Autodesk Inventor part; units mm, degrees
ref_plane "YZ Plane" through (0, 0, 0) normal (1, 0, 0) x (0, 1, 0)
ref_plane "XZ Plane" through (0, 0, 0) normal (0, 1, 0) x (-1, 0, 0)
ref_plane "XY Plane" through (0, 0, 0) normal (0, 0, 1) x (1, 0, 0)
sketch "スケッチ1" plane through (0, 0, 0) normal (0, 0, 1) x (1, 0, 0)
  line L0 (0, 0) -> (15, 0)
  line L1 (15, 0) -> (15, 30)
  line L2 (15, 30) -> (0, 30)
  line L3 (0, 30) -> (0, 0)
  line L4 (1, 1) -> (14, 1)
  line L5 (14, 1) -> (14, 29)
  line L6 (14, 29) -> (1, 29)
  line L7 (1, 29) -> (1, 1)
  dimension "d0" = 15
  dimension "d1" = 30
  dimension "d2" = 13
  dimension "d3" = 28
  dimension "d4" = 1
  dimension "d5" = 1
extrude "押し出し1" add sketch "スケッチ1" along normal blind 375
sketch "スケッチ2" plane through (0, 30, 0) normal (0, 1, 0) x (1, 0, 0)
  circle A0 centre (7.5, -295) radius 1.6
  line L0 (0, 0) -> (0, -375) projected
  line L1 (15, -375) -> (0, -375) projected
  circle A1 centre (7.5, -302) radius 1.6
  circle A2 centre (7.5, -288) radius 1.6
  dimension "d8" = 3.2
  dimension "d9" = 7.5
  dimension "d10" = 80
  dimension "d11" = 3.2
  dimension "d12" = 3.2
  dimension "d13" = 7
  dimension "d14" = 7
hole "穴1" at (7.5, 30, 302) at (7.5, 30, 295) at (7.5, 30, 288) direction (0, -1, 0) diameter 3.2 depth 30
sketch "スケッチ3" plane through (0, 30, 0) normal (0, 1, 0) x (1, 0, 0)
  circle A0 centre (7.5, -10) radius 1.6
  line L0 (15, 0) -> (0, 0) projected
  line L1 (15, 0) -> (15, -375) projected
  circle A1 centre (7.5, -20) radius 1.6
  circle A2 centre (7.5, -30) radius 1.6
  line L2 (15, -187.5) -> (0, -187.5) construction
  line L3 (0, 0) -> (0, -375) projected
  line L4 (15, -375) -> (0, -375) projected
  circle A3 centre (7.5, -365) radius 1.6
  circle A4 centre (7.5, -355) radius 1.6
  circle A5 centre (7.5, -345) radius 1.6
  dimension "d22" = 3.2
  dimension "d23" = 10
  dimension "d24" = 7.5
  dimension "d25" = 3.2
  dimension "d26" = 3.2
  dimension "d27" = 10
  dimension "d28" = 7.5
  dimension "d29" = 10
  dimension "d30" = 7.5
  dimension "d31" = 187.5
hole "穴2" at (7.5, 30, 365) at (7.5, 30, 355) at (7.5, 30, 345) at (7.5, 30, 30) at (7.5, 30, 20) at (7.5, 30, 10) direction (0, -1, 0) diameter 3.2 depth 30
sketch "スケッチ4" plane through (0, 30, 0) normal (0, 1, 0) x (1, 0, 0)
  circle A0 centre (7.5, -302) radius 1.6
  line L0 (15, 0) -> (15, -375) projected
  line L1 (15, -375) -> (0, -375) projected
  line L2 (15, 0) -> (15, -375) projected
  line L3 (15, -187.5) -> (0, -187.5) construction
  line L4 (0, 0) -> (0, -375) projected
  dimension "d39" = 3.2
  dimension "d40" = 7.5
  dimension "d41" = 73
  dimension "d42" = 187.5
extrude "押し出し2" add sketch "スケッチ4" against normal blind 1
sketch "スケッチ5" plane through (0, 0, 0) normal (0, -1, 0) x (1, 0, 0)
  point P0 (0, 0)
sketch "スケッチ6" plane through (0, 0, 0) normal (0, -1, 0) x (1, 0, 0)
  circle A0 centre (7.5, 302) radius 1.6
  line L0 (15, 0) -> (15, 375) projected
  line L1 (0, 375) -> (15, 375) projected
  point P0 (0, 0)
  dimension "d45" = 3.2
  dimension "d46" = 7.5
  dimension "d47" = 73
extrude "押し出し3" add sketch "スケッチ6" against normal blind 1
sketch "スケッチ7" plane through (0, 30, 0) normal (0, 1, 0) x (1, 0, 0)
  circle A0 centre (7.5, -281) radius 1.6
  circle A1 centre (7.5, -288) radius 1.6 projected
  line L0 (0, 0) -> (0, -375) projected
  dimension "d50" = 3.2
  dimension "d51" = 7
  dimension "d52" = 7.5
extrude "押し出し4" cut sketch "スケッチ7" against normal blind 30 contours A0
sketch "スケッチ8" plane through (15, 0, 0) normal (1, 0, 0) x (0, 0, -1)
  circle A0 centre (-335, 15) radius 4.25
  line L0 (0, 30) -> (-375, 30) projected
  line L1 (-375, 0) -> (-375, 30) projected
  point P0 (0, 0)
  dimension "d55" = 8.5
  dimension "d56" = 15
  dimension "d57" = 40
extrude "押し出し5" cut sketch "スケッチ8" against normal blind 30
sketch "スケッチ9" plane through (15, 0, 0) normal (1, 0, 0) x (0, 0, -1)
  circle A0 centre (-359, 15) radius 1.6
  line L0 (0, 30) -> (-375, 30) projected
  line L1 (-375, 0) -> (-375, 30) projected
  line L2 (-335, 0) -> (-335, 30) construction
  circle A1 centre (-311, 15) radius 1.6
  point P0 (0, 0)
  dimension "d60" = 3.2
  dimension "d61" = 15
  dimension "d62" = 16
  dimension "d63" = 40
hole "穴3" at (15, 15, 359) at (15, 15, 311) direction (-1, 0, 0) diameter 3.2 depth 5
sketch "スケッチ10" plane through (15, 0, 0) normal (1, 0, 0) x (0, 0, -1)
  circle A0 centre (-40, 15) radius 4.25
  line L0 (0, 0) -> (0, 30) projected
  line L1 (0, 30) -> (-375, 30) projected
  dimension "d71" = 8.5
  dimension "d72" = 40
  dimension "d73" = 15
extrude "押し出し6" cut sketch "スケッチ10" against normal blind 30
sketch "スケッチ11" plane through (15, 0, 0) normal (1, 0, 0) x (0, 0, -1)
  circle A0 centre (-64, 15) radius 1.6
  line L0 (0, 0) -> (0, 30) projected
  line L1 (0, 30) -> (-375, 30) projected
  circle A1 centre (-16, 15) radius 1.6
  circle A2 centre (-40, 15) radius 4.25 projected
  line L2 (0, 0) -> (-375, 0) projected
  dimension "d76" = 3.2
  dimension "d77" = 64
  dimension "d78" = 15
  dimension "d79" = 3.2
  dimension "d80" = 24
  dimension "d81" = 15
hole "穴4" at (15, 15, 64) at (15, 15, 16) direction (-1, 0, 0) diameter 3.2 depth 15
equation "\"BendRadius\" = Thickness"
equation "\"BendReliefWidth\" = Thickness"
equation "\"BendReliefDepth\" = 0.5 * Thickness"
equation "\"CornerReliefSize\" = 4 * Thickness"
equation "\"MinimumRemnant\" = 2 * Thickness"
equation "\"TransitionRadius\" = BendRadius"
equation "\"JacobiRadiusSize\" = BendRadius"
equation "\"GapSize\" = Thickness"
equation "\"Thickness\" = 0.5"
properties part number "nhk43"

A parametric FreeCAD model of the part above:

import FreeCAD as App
import Part
import Sketcher

V = App.Vector
Q = App.Units.Quantity


def add_polygon(sketch, points):
    """Adds a closed chain of lines whose ends are joined by coincident constraints."""
    first, n = sketch.GeometryCount, len(points)
    for a, b in zip(points, points[1:] + points[:1]):
        sketch.addGeometry(Part.LineSegment(App.Vector(*a, 0), App.Vector(*b, 0)), False)
    for i in range(n):
        sketch.addConstraint(Sketcher.Constraint("Coincident", first + i, 2, first + (i + 1) % n, 1))

doc = App.newDocument("Part")
body = doc.addObject("PartDesign::Body", "Body")

# Sketch on XY plane
sketch1 = doc.addObject("Sketcher::SketchObject", "Sketch")
body.addObject(sketch1)
sketch1.AttachmentSupport = (doc.XY_Plane, [""])
sketch1.MapMode = "FlatFace"
add_polygon(sketch1, [(0, 30), (0, 0), (15, 0), (15, 30)])  # lines 0-3
add_polygon(sketch1, [(14, 1), (1, 1), (1, 29), (14, 29)])  # lines 4-7
sketch1.addConstraint(Sketcher.Constraint("Vertical", 0))
sketch1.addConstraint(Sketcher.Constraint("Horizontal", 1))
sketch1.addConstraint(Sketcher.Constraint("Vertical", 2))
sketch1.addConstraint(Sketcher.Constraint("Horizontal", 3))
sketch1.addConstraint(Sketcher.Constraint("Horizontal", 4))
sketch1.addConstraint(Sketcher.Constraint("Vertical", 5))
sketch1.addConstraint(Sketcher.Constraint("Horizontal", 6))
sketch1.addConstraint(Sketcher.Constraint("Vertical", 7))
sketch1.addConstraint(Sketcher.Constraint("Coincident", 0, 2, -1, 1))
sketch1.addConstraint(Sketcher.Constraint("DistanceX", 1, 1, 1, 2, Q("15 mm")))
sketch1.addConstraint(Sketcher.Constraint("DistanceX", 4, 2, 4, 1, Q("13 mm")))
sketch1.addConstraint(Sketcher.Constraint("DistanceY", 0, 2, 0, 1, Q("30 mm")))
sketch1.addConstraint(Sketcher.Constraint("DistanceY", 5, 1, 5, 2, Q("28 mm")))
sketch1.addConstraint(Sketcher.Constraint("DistanceX", -1, 1, 4, 2, Q("1 mm")))
sketch1.addConstraint(Sketcher.Constraint("DistanceY", -1, 1, 4, 2, Q("1 mm")))
pad1 = doc.addObject("PartDesign::Pad", "Pad")
body.addObject(pad1)
pad1.Profile = sketch1
pad1.Length = 375

# Sketch on XZ plane
sketch2 = doc.addObject("Sketcher::SketchObject", "Sketch001")
body.addObject(sketch2)
sketch2.AttachmentSupport = (doc.XZ_Plane, [""])
sketch2.MapMode = "FlatFace"
sketch2.AttachmentOffset = App.Placement(V(0, 0, -30), App.Rotation())
sketch2.addGeometry(Part.Circle(V(7.5, 302, 0), V(0, 0, 1), 1.6), False)
sketch2.addGeometry(Part.Circle(V(7.5, 295, 0), V(0, 0, 1), 1.6), False)
sketch2.addGeometry(Part.Circle(V(7.5, 288, 0), V(0, 0, 1), 1.6), False)
sketch2.addConstraint(Sketcher.Constraint("Equal", 0, 1))
sketch2.addConstraint(Sketcher.Constraint("Equal", 1, 2))
sketch2.addConstraint(Sketcher.Constraint("Vertical", 0, 3, 1, 3))
sketch2.addConstraint(Sketcher.Constraint("Vertical", 1, 3, 2, 3))
sketch2.addConstraint(Sketcher.Constraint("Diameter", 0, Q("3.2 mm")))
sketch2.addConstraint(Sketcher.Constraint("DistanceY", -1, 1, 0, 3, Q("302 mm")))
sketch2.addConstraint(Sketcher.Constraint("DistanceY", -1, 1, 1, 3, Q("295 mm")))
sketch2.addConstraint(Sketcher.Constraint("DistanceY", -1, 1, 2, 3, Q("288 mm")))
sketch2.addConstraint(Sketcher.Constraint("DistanceX", -1, 1, 0, 3, Q("7.5 mm")))
doc.recompute()
hole = doc.addObject("PartDesign::Hole", "Hole")
body.addObject(hole)
hole.Profile = sketch2
hole.ThreadType = "None"
hole.Diameter = 3.2
hole.DepthType = "Dimension"
hole.Depth = 30
hole.DrillPoint = "Flat"
hole.Reversed = True

# Sketch on XZ plane
sketch3 = doc.addObject("Sketcher::SketchObject", "Sketch002")
body.addObject(sketch3)
sketch3.AttachmentSupport = (doc.XZ_Plane, [""])
sketch3.MapMode = "FlatFace"
sketch3.AttachmentOffset = App.Placement(V(0, 0, -30), App.Rotation())
sketch3.addGeometry(Part.Circle(V(7.5, 365, 0), V(0, 0, 1), 1.6), False)
sketch3.addGeometry(Part.Circle(V(7.5, 355, 0), V(0, 0, 1), 1.6), False)
sketch3.addGeometry(Part.Circle(V(7.5, 345, 0), V(0, 0, 1), 1.6), False)
sketch3.addGeometry(Part.Circle(V(7.5, 30, 0), V(0, 0, 1), 1.6), False)
sketch3.addGeometry(Part.Circle(V(7.5, 20, 0), V(0, 0, 1), 1.6), False)
sketch3.addGeometry(Part.Circle(V(7.5, 10, 0), V(0, 0, 1), 1.6), False)
sketch3.addConstraint(Sketcher.Constraint("Equal", 0, 1))
sketch3.addConstraint(Sketcher.Constraint("Equal", 1, 2))
sketch3.addConstraint(Sketcher.Constraint("Equal", 2, 3))
sketch3.addConstraint(Sketcher.Constraint("Equal", 3, 4))
sketch3.addConstraint(Sketcher.Constraint("Equal", 4, 5))
sketch3.addConstraint(Sketcher.Constraint("Vertical", 0, 3, 1, 3))
sketch3.addConstraint(Sketcher.Constraint("Vertical", 1, 3, 2, 3))
sketch3.addConstraint(Sketcher.Constraint("Vertical", 2, 3, 3, 3))
sketch3.addConstraint(Sketcher.Constraint("Vertical", 3, 3, 4, 3))
sketch3.addConstraint(Sketcher.Constraint("Vertical", 4, 3, 5, 3))
sketch3.addConstraint(Sketcher.Constraint("Diameter", 0, Q("3.2 mm")))
sketch3.addConstraint(Sketcher.Constraint("DistanceY", -1, 1, 0, 3, Q("365 mm")))
sketch3.addConstraint(Sketcher.Constraint("DistanceY", -1, 1, 1, 3, Q("355 mm")))
sketch3.addConstraint(Sketcher.Constraint("DistanceY", -1, 1, 2, 3, Q("345 mm")))
sketch3.addConstraint(Sketcher.Constraint("DistanceY", -1, 1, 3, 3, Q("30 mm")))
sketch3.addConstraint(Sketcher.Constraint("DistanceY", -1, 1, 4, 3, Q("20 mm")))
sketch3.addConstraint(Sketcher.Constraint("DistanceY", -1, 1, 5, 3, Q("10 mm")))
sketch3.addConstraint(Sketcher.Constraint("DistanceX", -1, 1, 0, 3, Q("7.5 mm")))
doc.recompute()
hole2 = doc.addObject("PartDesign::Hole", "Hole001")
body.addObject(hole2)
hole2.Profile = sketch3
hole2.ThreadType = "None"
hole2.Diameter = 3.2
hole2.DepthType = "Dimension"
hole2.Depth = 30
hole2.DrillPoint = "Flat"
hole2.Reversed = True

# Sketch on XZ plane
sketch4 = doc.addObject("Sketcher::SketchObject", "Sketch003")
body.addObject(sketch4)
sketch4.AttachmentSupport = (doc.XZ_Plane, [""])
sketch4.MapMode = "FlatFace"
sketch4.AttachmentOffset = App.Placement(V(0, 0, -30), App.Rotation())
sketch4.addGeometry(Part.Circle(V(7.5, 302, 0), V(0, 0, 1), 1.6), False)
sketch4.addConstraint(Sketcher.Constraint("Diameter", 0, Q("3.2 mm")))
sketch4.addConstraint(Sketcher.Constraint("DistanceX", -1, 1, 0, 3, Q("7.5 mm")))
sketch4.addConstraint(Sketcher.Constraint("DistanceY", -1, 1, 0, 3, Q("302 mm")))
pad2 = doc.addObject("PartDesign::Pad", "Pad001")
body.addObject(pad2)
pad2.Profile = sketch4
pad2.Length = 1

# Sketch on XZ plane
sketch5 = doc.addObject("Sketcher::SketchObject", "Sketch004")
body.addObject(sketch5)
sketch5.AttachmentSupport = (doc.XZ_Plane, [""])
sketch5.MapMode = "FlatFace"
sketch5.addGeometry(Part.Circle(V(7.5, 302, 0), V(0, 0, 1), 1.6), False)
sketch5.addConstraint(Sketcher.Constraint("Diameter", 0, Q("3.2 mm")))
sketch5.addConstraint(Sketcher.Constraint("DistanceX", -1, 1, 0, 3, Q("7.5 mm")))
sketch5.addConstraint(Sketcher.Constraint("DistanceY", -1, 1, 0, 3, Q("302 mm")))
pad3 = doc.addObject("PartDesign::Pad", "Pad002")
body.addObject(pad3)
pad3.Profile = sketch5
pad3.Length = 1
pad3.Reversed = True

# Sketch on XZ plane
sketch6 = doc.addObject("Sketcher::SketchObject", "Sketch005")
body.addObject(sketch6)
sketch6.AttachmentSupport = (doc.XZ_Plane, [""])
sketch6.MapMode = "FlatFace"
sketch6.AttachmentOffset = App.Placement(V(0, 0, -30), App.Rotation())
sketch6.addGeometry(Part.Circle(V(7.5, 281, 0), V(0, 0, 1), 1.6), False)
sketch6.addConstraint(Sketcher.Constraint("Diameter", 0, Q("3.2 mm")))
sketch6.addConstraint(Sketcher.Constraint("DistanceX", -1, 1, 0, 3, Q("7.5 mm")))
sketch6.addConstraint(Sketcher.Constraint("DistanceY", -1, 1, 0, 3, Q("281 mm")))
pocket1 = doc.addObject("PartDesign::Pocket", "Pocket")
body.addObject(pocket1)
pocket1.Profile = sketch6
pocket1.Length = 30
pocket1.Reversed = True

# Sketch on YZ plane
sketch7 = doc.addObject("Sketcher::SketchObject", "Sketch006")
body.addObject(sketch7)
sketch7.AttachmentSupport = (doc.YZ_Plane, [""])
sketch7.MapMode = "FlatFace"
sketch7.AttachmentOffset = App.Placement(V(0, 0, 15), App.Rotation())
sketch7.addGeometry(Part.Circle(V(15, 335, 0), V(0, 0, 1), 4.2), False)
sketch7.addConstraint(Sketcher.Constraint("Diameter", 0, Q("8.5 mm")))
sketch7.addConstraint(Sketcher.Constraint("DistanceX", -1, 1, 0, 3, Q("15 mm")))
sketch7.addConstraint(Sketcher.Constraint("DistanceY", -1, 1, 0, 3, Q("335 mm")))
pocket2 = doc.addObject("PartDesign::Pocket", "Pocket001")
body.addObject(pocket2)
pocket2.Profile = sketch7
pocket2.Length = 30

# Sketch on YZ plane
sketch8 = doc.addObject("Sketcher::SketchObject", "Sketch007")
body.addObject(sketch8)
sketch8.AttachmentSupport = (doc.YZ_Plane, [""])
sketch8.MapMode = "FlatFace"
sketch8.AttachmentOffset = App.Placement(V(0, 0, 15), App.Rotation())
sketch8.addGeometry(Part.Circle(V(15, 359, 0), V(0, 0, 1), 1.6), False)
sketch8.addGeometry(Part.Circle(V(15, 311, 0), V(0, 0, 1), 1.6), False)
sketch8.addConstraint(Sketcher.Constraint("Equal", 0, 1))
sketch8.addConstraint(Sketcher.Constraint("Vertical", 0, 3, 1, 3))
sketch8.addConstraint(Sketcher.Constraint("Diameter", 0, Q("3.2 mm")))
sketch8.addConstraint(Sketcher.Constraint("DistanceX", -1, 1, 0, 3, Q("15 mm")))
sketch8.addConstraint(Sketcher.Constraint("DistanceY", -1, 1, 0, 3, Q("359 mm")))
sketch8.addConstraint(Sketcher.Constraint("DistanceY", -1, 1, 1, 3, Q("311 mm")))
doc.recompute()
hole3 = doc.addObject("PartDesign::Hole", "Hole002")
body.addObject(hole3)
hole3.Profile = sketch8
hole3.ThreadType = "None"
hole3.Diameter = 3.2
hole3.DepthType = "Dimension"
hole3.Depth = 5
hole3.DrillPoint = "Flat"

# Sketch on YZ plane
sketch9 = doc.addObject("Sketcher::SketchObject", "Sketch008")
body.addObject(sketch9)
sketch9.AttachmentSupport = (doc.YZ_Plane, [""])
sketch9.MapMode = "FlatFace"
sketch9.AttachmentOffset = App.Placement(V(0, 0, 15), App.Rotation())
sketch9.addGeometry(Part.Circle(V(15, 40, 0), V(0, 0, 1), 4.2), False)
sketch9.addConstraint(Sketcher.Constraint("Diameter", 0, Q("8.5 mm")))
sketch9.addConstraint(Sketcher.Constraint("DistanceX", -1, 1, 0, 3, Q("15 mm")))
sketch9.addConstraint(Sketcher.Constraint("DistanceY", -1, 1, 0, 3, Q("40 mm")))
pocket3 = doc.addObject("PartDesign::Pocket", "Pocket002")
body.addObject(pocket3)
pocket3.Profile = sketch9
pocket3.Length = 30

# Sketch on YZ plane
sketch10 = doc.addObject("Sketcher::SketchObject", "Sketch009")
body.addObject(sketch10)
sketch10.AttachmentSupport = (doc.YZ_Plane, [""])
sketch10.MapMode = "FlatFace"
sketch10.AttachmentOffset = App.Placement(V(0, 0, 15), App.Rotation())
sketch10.addGeometry(Part.Circle(V(15, 64, 0), V(0, 0, 1), 1.6), False)
sketch10.addGeometry(Part.Circle(V(15, 16, 0), V(0, 0, 1), 1.6), False)
sketch10.addConstraint(Sketcher.Constraint("Equal", 0, 1))
sketch10.addConstraint(Sketcher.Constraint("Vertical", 0, 3, 1, 3))
sketch10.addConstraint(Sketcher.Constraint("Diameter", 0, Q("3.2 mm")))
sketch10.addConstraint(Sketcher.Constraint("DistanceX", -1, 1, 0, 3, Q("15 mm")))
sketch10.addConstraint(Sketcher.Constraint("DistanceY", -1, 1, 0, 3, Q("64 mm")))
sketch10.addConstraint(Sketcher.Constraint("DistanceY", -1, 1, 1, 3, Q("16 mm")))
doc.recompute()
hole4 = doc.addObject("PartDesign::Hole", "Hole003")
body.addObject(hole4)
hole4.Profile = sketch10
hole4.ThreadType = "None"
hole4.Diameter = 3.2
hole4.DepthType = "Dimension"
hole4.Depth = 15
hole4.DrillPoint = "Flat"

doc.recompute()
